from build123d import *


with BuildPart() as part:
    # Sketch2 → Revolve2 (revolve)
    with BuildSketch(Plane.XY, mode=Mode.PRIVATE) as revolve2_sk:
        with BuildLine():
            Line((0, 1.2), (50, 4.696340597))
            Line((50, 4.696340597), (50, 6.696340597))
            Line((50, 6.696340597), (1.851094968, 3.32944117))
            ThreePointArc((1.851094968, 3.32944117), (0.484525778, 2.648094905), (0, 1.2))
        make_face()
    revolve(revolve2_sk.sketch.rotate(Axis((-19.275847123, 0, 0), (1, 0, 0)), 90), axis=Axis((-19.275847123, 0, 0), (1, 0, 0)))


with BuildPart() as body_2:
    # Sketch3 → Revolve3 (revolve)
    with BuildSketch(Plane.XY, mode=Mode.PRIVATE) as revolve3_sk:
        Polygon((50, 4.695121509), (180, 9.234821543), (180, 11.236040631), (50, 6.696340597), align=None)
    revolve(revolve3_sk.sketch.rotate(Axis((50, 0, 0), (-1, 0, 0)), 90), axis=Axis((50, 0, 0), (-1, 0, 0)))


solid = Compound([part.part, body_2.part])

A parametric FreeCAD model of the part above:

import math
import FreeCAD as App
import Part
import Sketcher

V = App.Vector
Q = App.Units.Quantity

doc = App.newDocument("Part")
body = doc.addObject("PartDesign::Body", "Body")

# Sketch on XY plane
sketch1 = doc.addObject("Sketcher::SketchObject", "Sketch")
body.addObject(sketch1)
sketch1.AttachmentSupport = (doc.XY_Plane, [""])
sketch1.MapMode = "FlatFace"
sketch1.addGeometry([
    Part.LineSegment(V(0, 1.2, 0), V(50, 4.7, 0)),
    Part.LineSegment(V(50, 4.7, 0), V(50, 6.7, 0)),
    Part.LineSegment(V(50, 6.7, 0), V(1.9, 3.3, 0)),
    Part.ArcOfCircle(Part.Circle(V(2, 1.3, 0), V(0, 0, 1), 2), math.radians(94), math.radians(184)),
], False)
sketch1.addConstraint([
    Sketcher.Constraint("Coincident", 0, 2, 1, 1),
    Sketcher.Constraint("Coincident", 1, 2, 2, 1),
    Sketcher.Constraint("Tangent", 2, 2, 3, 1),
    Sketcher.Constraint("Coincident", 3, 2, 0, 1),
    Sketcher.Constraint("Vertical", 1),
    Sketcher.Constraint("PointOnObject", 3, 2, -2),
    Sketcher.Constraint("Parallel", 0, 2),
    Sketcher.Constraint("DistanceY", 1, 1, 1, 2, Q("2 mm")),
    Sketcher.Constraint("Angle", 0, Q("4 deg")),
    Sketcher.Constraint("DistanceX", -1, 1, 0, 2, Q("50 mm")),
    Sketcher.Constraint("DistanceY", -1, 1, 3, 2, Q("1.2 mm")),
    Sketcher.Constraint("Radius", 3, Q("1.995128 mm")),
])
revolution = doc.addObject("PartDesign::Revolution", "Revolution")
body.addObject(revolution)
revolution.Profile = sketch1
revolution.ReferenceAxis = (sketch1, ["H_Axis"])
revolution.Angle = 360
body2 = doc.addObject("PartDesign::Body", "Body001")

# Sketch on XY plane
sketch2 = doc.addObject("Sketcher::SketchObject", "Sketch001")
body2.addObject(sketch2)
sketch2.AttachmentSupport = (doc.getObject("XY_Plane001"), [""])
sketch2.MapMode = "FlatFace"
sketch2.addGeometry([
    Part.LineSegment(V(50, 4.7, 0), V(180, 9.2, 0)),
    Part.LineSegment(V(180, 9.2, 0), V(180, 11.2, 0)),
    Part.LineSegment(V(180, 11.2, 0), V(50, 6.7, 0)),
    Part.LineSegment(V(50, 6.7, 0), V(50, 4.7, 0)),
], False)
sketch2.addConstraint([
    Sketcher.Constraint("Coincident", 0, 2, 1, 1),
    Sketcher.Constraint("Coincident", 1, 2, 2, 1),
    Sketcher.Constraint("Coincident", 2, 2, 3, 1),
    Sketcher.Constraint("Coincident", 3, 2, 0, 1),
    Sketcher.Constraint("Vertical", 1),
    Sketcher.Constraint("Vertical", 3),
    Sketcher.Constraint("Parallel", 0, 2),
    Sketcher.Constraint("Angle", 0, Q("2 deg")),
    Sketcher.Constraint("DistanceX", -1, 1, 0, 2, Q("180 mm")),
    Sketcher.Constraint("DistanceX", -1, 1, 2, 2, Q("50 mm")),
    Sketcher.Constraint("DistanceY", 1, 1, 1, 2, Q("2.001219 mm")),
    Sketcher.Constraint("DistanceY", -1, 1, 0, 2, Q("9.234822 mm")),
])
revolution2 = doc.addObject("PartDesign::Revolution", "Revolution001")
body2.addObject(revolution2)
revolution2.Profile = sketch2
revolution2.ReferenceAxis = (sketch2, ["H_Axis"])
revolution2.Angle = 360

doc.recompute()
